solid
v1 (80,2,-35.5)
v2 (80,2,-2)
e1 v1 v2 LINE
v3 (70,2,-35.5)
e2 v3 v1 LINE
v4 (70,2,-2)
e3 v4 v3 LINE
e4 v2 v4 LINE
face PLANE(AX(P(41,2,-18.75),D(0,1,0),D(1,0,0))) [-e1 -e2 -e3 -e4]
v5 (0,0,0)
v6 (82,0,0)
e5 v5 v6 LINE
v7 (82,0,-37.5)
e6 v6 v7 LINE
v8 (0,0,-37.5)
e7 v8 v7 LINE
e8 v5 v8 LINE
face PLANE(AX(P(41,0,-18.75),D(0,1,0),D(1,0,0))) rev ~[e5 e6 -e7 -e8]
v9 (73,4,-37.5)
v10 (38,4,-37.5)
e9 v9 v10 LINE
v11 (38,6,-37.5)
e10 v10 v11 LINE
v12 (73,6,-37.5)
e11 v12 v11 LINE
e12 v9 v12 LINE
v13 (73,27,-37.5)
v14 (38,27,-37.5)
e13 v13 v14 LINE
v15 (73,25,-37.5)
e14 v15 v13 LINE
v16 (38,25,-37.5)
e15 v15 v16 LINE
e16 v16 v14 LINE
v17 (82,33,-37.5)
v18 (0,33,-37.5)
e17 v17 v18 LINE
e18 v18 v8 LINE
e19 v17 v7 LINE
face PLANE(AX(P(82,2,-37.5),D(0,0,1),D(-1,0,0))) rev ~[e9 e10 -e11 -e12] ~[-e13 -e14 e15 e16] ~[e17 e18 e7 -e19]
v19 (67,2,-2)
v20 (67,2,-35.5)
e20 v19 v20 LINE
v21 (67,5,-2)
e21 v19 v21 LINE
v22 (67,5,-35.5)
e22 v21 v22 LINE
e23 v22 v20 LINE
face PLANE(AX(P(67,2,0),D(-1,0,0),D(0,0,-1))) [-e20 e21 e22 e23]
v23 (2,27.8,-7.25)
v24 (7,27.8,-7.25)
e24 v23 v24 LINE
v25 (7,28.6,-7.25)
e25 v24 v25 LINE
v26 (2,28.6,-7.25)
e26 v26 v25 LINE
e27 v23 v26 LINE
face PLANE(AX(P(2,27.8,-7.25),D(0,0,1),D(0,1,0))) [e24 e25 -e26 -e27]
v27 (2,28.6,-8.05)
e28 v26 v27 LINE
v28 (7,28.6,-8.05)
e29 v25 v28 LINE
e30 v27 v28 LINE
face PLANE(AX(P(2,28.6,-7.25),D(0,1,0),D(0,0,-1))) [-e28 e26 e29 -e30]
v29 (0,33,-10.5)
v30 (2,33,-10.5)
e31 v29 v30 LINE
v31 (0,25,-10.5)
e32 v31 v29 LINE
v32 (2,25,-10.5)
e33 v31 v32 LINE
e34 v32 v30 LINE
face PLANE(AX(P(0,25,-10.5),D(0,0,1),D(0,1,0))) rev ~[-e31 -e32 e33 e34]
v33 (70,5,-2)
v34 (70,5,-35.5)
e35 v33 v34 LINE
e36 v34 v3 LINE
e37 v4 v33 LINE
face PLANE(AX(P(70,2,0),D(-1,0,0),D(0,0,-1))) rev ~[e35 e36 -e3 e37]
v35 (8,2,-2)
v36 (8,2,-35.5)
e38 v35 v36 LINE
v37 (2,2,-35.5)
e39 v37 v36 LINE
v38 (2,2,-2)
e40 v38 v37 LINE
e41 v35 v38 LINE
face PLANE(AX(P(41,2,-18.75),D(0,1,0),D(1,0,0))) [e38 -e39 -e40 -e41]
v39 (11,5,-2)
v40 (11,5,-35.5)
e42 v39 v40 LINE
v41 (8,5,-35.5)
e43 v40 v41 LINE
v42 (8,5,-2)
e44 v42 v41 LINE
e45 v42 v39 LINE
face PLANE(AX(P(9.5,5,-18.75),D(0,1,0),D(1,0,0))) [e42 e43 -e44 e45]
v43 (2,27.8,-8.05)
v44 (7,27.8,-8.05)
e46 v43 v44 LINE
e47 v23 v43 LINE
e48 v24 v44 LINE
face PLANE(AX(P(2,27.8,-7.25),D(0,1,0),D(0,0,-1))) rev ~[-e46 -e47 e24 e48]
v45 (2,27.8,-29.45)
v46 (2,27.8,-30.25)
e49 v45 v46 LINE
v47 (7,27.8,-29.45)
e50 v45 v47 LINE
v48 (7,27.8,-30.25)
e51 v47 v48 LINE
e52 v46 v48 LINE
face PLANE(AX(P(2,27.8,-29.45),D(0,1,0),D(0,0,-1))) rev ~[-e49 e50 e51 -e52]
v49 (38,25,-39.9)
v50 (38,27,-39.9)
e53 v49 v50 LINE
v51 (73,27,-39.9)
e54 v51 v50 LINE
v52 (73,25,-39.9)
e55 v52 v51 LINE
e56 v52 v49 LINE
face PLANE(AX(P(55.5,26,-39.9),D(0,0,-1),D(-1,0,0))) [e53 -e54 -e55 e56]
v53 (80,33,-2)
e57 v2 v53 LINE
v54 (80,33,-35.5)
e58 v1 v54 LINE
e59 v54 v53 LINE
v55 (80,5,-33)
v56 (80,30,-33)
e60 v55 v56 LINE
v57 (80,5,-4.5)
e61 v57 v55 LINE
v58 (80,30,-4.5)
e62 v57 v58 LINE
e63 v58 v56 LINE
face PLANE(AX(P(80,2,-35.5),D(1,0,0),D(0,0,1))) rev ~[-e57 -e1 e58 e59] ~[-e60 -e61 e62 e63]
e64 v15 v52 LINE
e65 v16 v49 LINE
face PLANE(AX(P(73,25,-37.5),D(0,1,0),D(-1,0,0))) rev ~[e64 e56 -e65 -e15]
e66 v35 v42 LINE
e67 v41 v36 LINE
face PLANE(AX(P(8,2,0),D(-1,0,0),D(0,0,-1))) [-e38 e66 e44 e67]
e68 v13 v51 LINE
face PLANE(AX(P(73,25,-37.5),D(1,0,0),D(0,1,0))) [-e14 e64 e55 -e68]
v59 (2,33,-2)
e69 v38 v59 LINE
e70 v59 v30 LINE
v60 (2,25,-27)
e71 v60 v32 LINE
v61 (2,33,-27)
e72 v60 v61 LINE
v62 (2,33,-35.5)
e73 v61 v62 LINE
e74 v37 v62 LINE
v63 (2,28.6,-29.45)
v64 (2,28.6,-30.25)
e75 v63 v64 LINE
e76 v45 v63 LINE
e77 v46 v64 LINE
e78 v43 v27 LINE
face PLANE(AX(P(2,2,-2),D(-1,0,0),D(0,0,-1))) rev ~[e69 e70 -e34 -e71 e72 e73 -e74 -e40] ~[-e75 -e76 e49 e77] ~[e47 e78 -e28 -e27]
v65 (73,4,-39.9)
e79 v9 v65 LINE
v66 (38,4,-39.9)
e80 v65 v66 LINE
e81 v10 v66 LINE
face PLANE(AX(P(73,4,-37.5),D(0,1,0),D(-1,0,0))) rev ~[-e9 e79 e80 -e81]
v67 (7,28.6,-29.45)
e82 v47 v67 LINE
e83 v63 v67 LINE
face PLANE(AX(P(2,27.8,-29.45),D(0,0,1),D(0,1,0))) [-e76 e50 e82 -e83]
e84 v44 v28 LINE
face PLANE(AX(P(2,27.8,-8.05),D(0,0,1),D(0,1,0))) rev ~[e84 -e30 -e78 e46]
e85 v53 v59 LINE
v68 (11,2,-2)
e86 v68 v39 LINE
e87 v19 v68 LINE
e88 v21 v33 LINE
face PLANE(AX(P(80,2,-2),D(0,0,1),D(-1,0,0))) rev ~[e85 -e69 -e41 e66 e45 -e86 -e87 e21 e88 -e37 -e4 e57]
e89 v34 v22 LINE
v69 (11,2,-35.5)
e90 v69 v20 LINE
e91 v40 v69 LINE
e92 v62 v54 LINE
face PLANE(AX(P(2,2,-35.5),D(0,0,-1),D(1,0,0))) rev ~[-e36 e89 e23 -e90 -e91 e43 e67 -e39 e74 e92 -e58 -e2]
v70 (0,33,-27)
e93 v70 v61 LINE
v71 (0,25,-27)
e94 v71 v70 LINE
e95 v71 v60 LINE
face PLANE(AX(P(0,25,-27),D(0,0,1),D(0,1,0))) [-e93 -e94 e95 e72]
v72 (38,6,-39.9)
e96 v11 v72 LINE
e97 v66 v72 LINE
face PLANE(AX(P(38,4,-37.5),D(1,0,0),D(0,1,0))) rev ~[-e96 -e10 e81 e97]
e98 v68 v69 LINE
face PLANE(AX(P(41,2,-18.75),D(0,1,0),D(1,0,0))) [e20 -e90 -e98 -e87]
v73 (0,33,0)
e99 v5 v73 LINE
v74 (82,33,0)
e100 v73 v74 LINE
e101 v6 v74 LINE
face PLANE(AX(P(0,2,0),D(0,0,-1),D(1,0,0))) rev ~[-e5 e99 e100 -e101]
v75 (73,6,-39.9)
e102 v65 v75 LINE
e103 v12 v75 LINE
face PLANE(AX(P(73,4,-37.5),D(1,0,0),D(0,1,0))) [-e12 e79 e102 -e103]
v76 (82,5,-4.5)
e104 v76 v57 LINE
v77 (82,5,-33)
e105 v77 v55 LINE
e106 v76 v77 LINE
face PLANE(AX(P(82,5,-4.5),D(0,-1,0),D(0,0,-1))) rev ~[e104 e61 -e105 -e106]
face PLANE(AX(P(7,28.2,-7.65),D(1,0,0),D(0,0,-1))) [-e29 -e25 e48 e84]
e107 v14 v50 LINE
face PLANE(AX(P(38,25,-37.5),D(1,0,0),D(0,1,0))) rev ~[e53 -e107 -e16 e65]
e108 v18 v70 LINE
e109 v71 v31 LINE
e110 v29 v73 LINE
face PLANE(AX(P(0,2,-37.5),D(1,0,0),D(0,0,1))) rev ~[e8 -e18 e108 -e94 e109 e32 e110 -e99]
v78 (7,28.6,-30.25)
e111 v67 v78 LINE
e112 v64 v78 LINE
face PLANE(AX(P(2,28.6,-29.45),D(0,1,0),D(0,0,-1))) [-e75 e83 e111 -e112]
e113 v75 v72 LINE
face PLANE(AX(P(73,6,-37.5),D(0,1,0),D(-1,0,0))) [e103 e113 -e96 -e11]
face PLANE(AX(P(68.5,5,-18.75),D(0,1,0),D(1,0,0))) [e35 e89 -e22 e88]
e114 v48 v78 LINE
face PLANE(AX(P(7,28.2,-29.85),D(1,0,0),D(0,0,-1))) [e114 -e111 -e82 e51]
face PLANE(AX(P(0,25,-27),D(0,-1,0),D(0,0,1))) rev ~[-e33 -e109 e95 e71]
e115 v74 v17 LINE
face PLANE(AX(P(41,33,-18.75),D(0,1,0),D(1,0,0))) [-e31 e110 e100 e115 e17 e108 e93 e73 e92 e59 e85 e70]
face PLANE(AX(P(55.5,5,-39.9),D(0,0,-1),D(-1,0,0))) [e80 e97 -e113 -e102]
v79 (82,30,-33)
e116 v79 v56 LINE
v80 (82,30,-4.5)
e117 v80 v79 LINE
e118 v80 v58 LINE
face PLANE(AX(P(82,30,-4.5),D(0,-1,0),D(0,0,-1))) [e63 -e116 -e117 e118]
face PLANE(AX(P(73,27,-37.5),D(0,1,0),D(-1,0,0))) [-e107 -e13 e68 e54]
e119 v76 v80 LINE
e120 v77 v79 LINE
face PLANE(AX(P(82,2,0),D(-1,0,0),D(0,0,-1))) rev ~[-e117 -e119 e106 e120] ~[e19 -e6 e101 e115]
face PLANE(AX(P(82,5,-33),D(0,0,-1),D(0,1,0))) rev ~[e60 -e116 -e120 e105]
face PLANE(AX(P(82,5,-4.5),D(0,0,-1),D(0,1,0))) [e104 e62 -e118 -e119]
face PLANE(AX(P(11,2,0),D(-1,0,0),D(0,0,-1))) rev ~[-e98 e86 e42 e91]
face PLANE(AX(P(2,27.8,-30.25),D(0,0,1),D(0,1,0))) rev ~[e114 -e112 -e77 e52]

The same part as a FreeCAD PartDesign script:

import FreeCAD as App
import Part
import Sketcher
from FreeCAD import Vector
Q = App.Units.Quantity

doc = App.newDocument("Part")
body = doc.addObject("PartDesign::Body", "Body")

# Sketch on XZ plane
sketch1 = body.newObject("Sketcher::SketchObject", "Sketch")
sketch1.AttachmentSupport = (doc.getObject("XZ_Plane"), [""])
sketch1.MapMode = "FlatFace"
sketch1.addGeometry(Part.LineSegment(Vector(0, -38, 0), Vector(0, 0, 0)), False)
sketch1.addGeometry(Part.LineSegment(Vector(0, 0, 0), Vector(82, 0, 0)), False)
sketch1.addGeometry(Part.LineSegment(Vector(82, 0, 0), Vector(82, -38, 0)), False)
sketch1.addGeometry(Part.LineSegment(Vector(82, -38, 0), Vector(0, -38, 0)), False)
sketch1.addConstraint(Sketcher.Constraint("Coincident", 0, 2, 1, 1))
sketch1.addConstraint(Sketcher.Constraint("Coincident", 1, 2, 2, 1))
sketch1.addConstraint(Sketcher.Constraint("Coincident", 2, 2, 3, 1))
sketch1.addConstraint(Sketcher.Constraint("Coincident", 3, 2, 0, 1))
sketch1.addConstraint(Sketcher.Constraint("Vertical", 0))
sketch1.addConstraint(Sketcher.Constraint("Horizontal", 1))
sketch1.addConstraint(Sketcher.Constraint("Vertical", 2))
sketch1.addConstraint(Sketcher.Constraint("Horizontal", 3))
sketch1.addConstraint(Sketcher.Constraint("Coincident", 0, 2, -1, 1))
sketch1.addConstraint(Sketcher.Constraint("DistanceX", 1, 1, 1, 2, Q("82 mm")))
sketch1.addConstraint(Sketcher.Constraint("DistanceY", 0, 1, 0, 2, Q("37.5 mm")))
pad1 = body.newObject("PartDesign::Pad", "Pad")
pad1.Profile = sketch1
pad1.Length = 2
pad1.Reversed = True

# Sketch on XZ plane
sketch2 = body.newObject("Sketcher::SketchObject", "Sketch001")
sketch2.AttachmentSupport = (doc.getObject("XZ_Plane"), [""])
sketch2.MapMode = "FlatFace"
sketch2.AttachmentOffset = App.Placement(Vector(0, 0, -2), App.Rotation())
sketch2.addGeometry(Part.LineSegment(Vector(8, -37.5, 0), Vector(8, 0, 0)), False)
sketch2.addGeometry(Part.LineSegment(Vector(8, 0, 0), Vector(11, 0, 0)), False)
sketch2.addGeometry(Part.LineSegment(Vector(11, 0, 0), Vector(11, -37.5, 0)), False)
sketch2.addGeometry(Part.LineSegment(Vector(11, -37.5, 0), Vector(8, -37.5, 0)), False)
sketch2.addGeometry(Part.LineSegment(Vector(67, -37.5, 0), Vector(67, 0, 0)), False)
sketch2.addGeometry(Part.LineSegment(Vector(67, 0, 0), Vector(70, 0, 0)), False)
sketch2.addGeometry(Part.LineSegment(Vector(70, 0, 0), Vector(70, -37.5, 0)), False)
sketch2.addGeometry(Part.LineSegment(Vector(70, -37.5, 0), Vector(67, -37.5, 0)), False)
sketch2.addConstraint(Sketcher.Constraint("Coincident", 0, 2, 1, 1))
sketch2.addConstraint(Sketcher.Constraint("Coincident", 1, 2, 2, 1))
sketch2.addConstraint(Sketcher.Constraint("Coincident", 2, 2, 3, 1))
sketch2.addConstraint(Sketcher.Constraint("Coincident", 3, 2, 0, 1))
sketch2.addConstraint(Sketcher.Constraint("Coincident", 4, 2, 5, 1))
sketch2.addConstraint(Sketcher.Constraint("Coincident", 5, 2, 6, 1))
sketch2.addConstraint(Sketcher.Constraint("Coincident", 6, 2, 7, 1))
sketch2.addConstraint(Sketcher.Constraint("Coincident", 7, 2, 4, 1))
sketch2.addConstraint(Sketcher.Constraint("Vertical", 0))
sketch2.addConstraint(Sketcher.Constraint("Horizontal", 1))
sketch2.addConstraint(Sketcher.Constraint("Vertical", 2))
sketch2.addConstraint(Sketcher.Constraint("Horizontal", 3))
sketch2.addConstraint(Sketcher.Constraint("Vertical", 4))
sketch2.addConstraint(Sketcher.Constraint("Horizontal", 5))
sketch2.addConstraint(Sketcher.Constraint("Vertical", 6))
sketch2.addConstraint(Sketcher.Constraint("Horizontal", 7))
sketch2.addConstraint(Sketcher.Constraint("PointOnObject", 0, 2, -1))
sketch2.addConstraint(Sketcher.Constraint("PointOnObject", 4, 2, -1))
sketch2.addConstraint(Sketcher.Constraint("Horizontal", 3, 2, 6, 2))
sketch2.addConstraint(Sketcher.Constraint("Equal", 3, 5))
sketch2.addConstraint(Sketcher.Constraint("DistanceX", 1, 1, 1, 2, Q("3 mm")))
sketch2.addConstraint(Sketcher.Constraint("DistanceY", 0, 1, 0, 2, Q("37.5 mm")))
sketch2.addConstraint(Sketcher.Constraint("DistanceX", -1, 1, 0, 2, Q("8 mm")))
sketch2.addConstraint(Sketcher.Constraint("DistanceX", -1, 1, 4, 2, Q("67 mm")))
pad2 = body.newObject("PartDesign::Pad", "Pad001")
pad2.Profile = sketch2
pad2.Length = 3
pad2.Reversed = True

# Sketch on XZ plane
sketch3 = body.newObject("Sketcher::SketchObject", "Sketch002")
sketch3.AttachmentSupport = (doc.getObject("XZ_Plane"), [""])
sketch3.MapMode = "FlatFace"
sketch3.AttachmentOffset = App.Placement(Vector(0, 0, -2), App.Rotation())
sketch3.addGeometry(Part.LineSegment(Vector(0, -38, 0), Vector(0, 0, 0)), False)
sketch3.addGeometry(Part.LineSegment(Vector(0, 0, 0), Vector(82, 0, 0)), False)
sketch3.addGeometry(Part.LineSegment(Vector(82, 0, 0), Vector(82, -38, 0)), False)
sketch3.addGeometry(Part.LineSegment(Vector(82, -38, 0), Vector(0, -38, 0)), False)
sketch3.addGeometry(Part.LineSegment(Vector(80, -2, 0), Vector(2, -2, 0)), False)
sketch3.addGeometry(Part.LineSegment(Vector(2, -2, 0), Vector(2, -36, 0)), False)
sketch3.addGeometry(Part.LineSegment(Vector(2, -36, 0), Vector(80, -36, 0)), False)
sketch3.addGeometry(Part.LineSegment(Vector(80, -36, 0), Vector(80, -2, 0)), False)
sketch3.addConstraint(Sketcher.Constraint("Coincident", 0, 2, 1, 1))
sketch3.addConstraint(Sketcher.Constraint("Coincident", 1, 2, 2, 1))
sketch3.addConstraint(Sketcher.Constraint("Coincident", 2, 2, 3, 1))
sketch3.addConstraint(Sketcher.Constraint("Coincident", 3, 2, 0, 1))
sketch3.addConstraint(Sketcher.Constraint("Coincident", 4, 2, 5, 1))
sketch3.addConstraint(Sketcher.Constraint("Coincident", 5, 2, 6, 1))
sketch3.addConstraint(Sketcher.Constraint("Coincident", 6, 2, 7, 1))
sketch3.addConstraint(Sketcher.Constraint("Coincident", 7, 2, 4, 1))
sketch3.addConstraint(Sketcher.Constraint("Vertical", 0))
sketch3.addConstraint(Sketcher.Constraint("Horizontal", 1))
sketch3.addConstraint(Sketcher.Constraint("Vertical", 2))
sketch3.addConstraint(Sketcher.Constraint("Horizontal", 3))
sketch3.addConstraint(Sketcher.Constraint("Horizontal", 4))
sketch3.addConstraint(Sketcher.Constraint("Vertical", 5))
sketch3.addConstraint(Sketcher.Constraint("Horizontal", 6))
sketch3.addConstraint(Sketcher.Constraint("Vertical", 7))
sketch3.addConstraint(Sketcher.Constraint("Coincident", 0, 2, -1, 1))
sketch3.addConstraint(Sketcher.Constraint("DistanceX", 1, 1, 1, 2, Q("82 mm")))
sketch3.addConstraint(Sketcher.Constraint("DistanceX", 4, 2, 4, 1, Q("78 mm")))
sketch3.addConstraint(Sketcher.Constraint("DistanceY", 0, 1, 0, 2, Q("37.5 mm")))
sketch3.addConstraint(Sketcher.Constraint("DistanceY", 5, 2, 5, 1, Q("33.5 mm")))
sketch3.addConstraint(Sketcher.Constraint("DistanceX", -1, 1, 4, 2, Q("2 mm")))
sketch3.addConstraint(Sketcher.Constraint("DistanceY", 4, 2, -1, 1, Q("2 mm")))
pad3 = body.newObject("PartDesign::Pad", "Pad002")
pad3.Profile = sketch3
pad3.Length = 31
pad3.Reversed = True

# Sketch on YZ plane
sketch4 = body.newObject("Sketcher::SketchObject", "Sketch003")
sketch4.AttachmentSupport = (doc.getObject("YZ_Plane"), [""])
sketch4.MapMode = "FlatFace"
sketch4.addGeometry(Part.LineSegment(Vector(33, -27, 0), Vector(25, -27, 0)), False)
sketch4.addGeometry(Part.LineSegment(Vector(25, -27, 0), Vector(25, -10, 0)), False)
sketch4.addGeometry(Part.LineSegment(Vector(25, -10, 0), Vector(33, -10, 0)), False)
sketch4.addGeometry(Part.LineSegment(Vector(33, -10, 0), Vector(33, -27, 0)), False)
sketch4.addConstraint(Sketcher.Constraint("Coincident", 0, 2, 1, 1))
sketch4.addConstraint(Sketcher.Constraint("Coincident", 1, 2, 2, 1))
sketch4.addConstraint(Sketcher.Constraint("Coincident", 2, 2, 3, 1))
sketch4.addConstraint(Sketcher.Constraint("Coincident", 3, 2, 0, 1))
sketch4.addConstraint(Sketcher.Constraint("Horizontal", 0))
sketch4.addConstraint(Sketcher.Constraint("Vertical", 1))
sketch4.addConstraint(Sketcher.Constraint("Horizontal", 2))
sketch4.addConstraint(Sketcher.Constraint("Vertical", 3))
sketch4.addConstraint(Sketcher.Constraint("DistanceX", 0, 2, 0, 1, Q("8 mm")))
sketch4.addConstraint(Sketcher.Constraint("DistanceY", 1, 1, 1, 2, Q("16.5 mm")))
sketch4.addConstraint(Sketcher.Constraint("DistanceX", -1, 1, 0, 2, Q("25 mm")))
sketch4.addConstraint(Sketcher.Constraint("DistanceY", 0, 2, -1, 1, Q("27 mm")))
pocket1 = body.newObject("PartDesign::Pocket", "Pocket")
pocket1.Profile = sketch4
pocket1.Length = 2
pocket1.Reversed = True

# Sketch on YZ plane
sketch5 = body.newObject("Sketcher::SketchObject", "Sketch004")
sketch5.AttachmentSupport = (doc.getObject("YZ_Plane"), [""])
sketch5.MapMode = "FlatFace"
sketch5.AttachmentOffset = App.Placement(Vector(0, 0, 82), App.Rotation())
sketch5.addGeometry(Part.LineSegment(Vector(30, -4, 0), Vector(5, -4, 0)), False)
sketch5.addGeometry(Part.LineSegment(Vector(5, -4, 0), Vector(5, -33, 0)), False)
sketch5.addGeometry(Part.LineSegment(Vector(5, -33, 0), Vector(30, -33, 0)), False)
sketch5.addGeometry(Part.LineSegment(Vector(30, -33, 0), Vector(30, -4, 0)), False)
sketch5.addConstraint(Sketcher.Constraint("Coincident", 0, 2, 1, 1))
sketch5.addConstraint(Sketcher.Constraint("Coincident", 1, 2, 2, 1))
sketch5.addConstraint(Sketcher.Constraint("Coincident", 2, 2, 3, 1))
sketch5.addConstraint(Sketcher.Constraint("Coincident", 3, 2, 0, 1))
sketch5.addConstraint(Sketcher.Constraint("Horizontal", 0))
sketch5.addConstraint(Sketcher.Constraint("Vertical", 1))
sketch5.addConstraint(Sketcher.Constraint("Horizontal", 2))
sketch5.addConstraint(Sketcher.Constraint("Vertical", 3))
sketch5.addConstraint(Sketcher.Constraint("DistanceX", 0, 2, 0, 1, Q("25 mm")))
sketch5.addConstraint(Sketcher.Constraint("DistanceY", 1, 2, 1, 1, Q("28.5 mm")))
sketch5.addConstraint(Sketcher.Constraint("DistanceX", -1, 1, 0, 2, Q("5 mm")))
sketch5.addConstraint(Sketcher.Constraint("DistanceY", 1, 2, -1, 1, Q("33 mm")))
pocket2 = body.newObject("PartDesign::Pocket", "Pocket001")
pocket2.Profile = sketch5
pocket2.Length = 2

# Sketch on YZ plane
sketch6 = body.newObject("Sketcher::SketchObject", "Sketch005")
sketch6.AttachmentSupport = (doc.getObject("YZ_Plane"), [""])
sketch6.MapMode = "FlatFace"
sketch6.AttachmentOffset = App.Placement(Vector(0, 0, 2), App.Rotation())
sketch6.addGeometry(Part.LineSegment(Vector(28.6, -7.2, 0), Vector(27.8, -7.2, 0)), False)
sketch6.addGeometry(Part.LineSegment(Vector(27.8, -7.2, 0), Vector(27.8, -8.1, 0)), False)
sketch6.addGeometry(Part.LineSegment(Vector(27.8, -8.1, 0), Vector(28.6, -8.1, 0)), False)
sketch6.addGeometry(Part.LineSegment(Vector(28.6, -8.1, 0), Vector(28.6, -7.2, 0)), False)
sketch6.addGeometry(Part.LineSegment(Vector(28.6, -29.4, 0), Vector(27.8, -29.4, 0)), False)
sketch6.addGeometry(Part.LineSegment(Vector(27.8, -29.4, 0), Vector(27.8, -30.2, 0)), False)
sketch6.addGeometry(Part.LineSegment(Vector(27.8, -30.2, 0), Vector(28.6, -30.2, 0)), False)
sketch6.addGeometry(Part.LineSegment(Vector(28.6, -30.2, 0), Vector(28.6, -29.4, 0)), False)
sketch6.addConstraint(Sketcher.Constraint("Coincident", 0, 2, 1, 1))
sketch6.addConstraint(Sketcher.Constraint("Coincident", 1, 2, 2, 1))
sketch6.addConstraint(Sketcher.Constraint("Coincident", 2, 2, 3, 1))
sketch6.addConstraint(Sketcher.Constraint("Coincident", 3, 2, 0, 1))
sketch6.addConstraint(Sketcher.Constraint("Coincident", 4, 2, 5, 1))
sketch6.addConstraint(Sketcher.Constraint("Coincident", 5, 2, 6, 1))
sketch6.addConstraint(Sketcher.Constraint("Coincident", 6, 2, 7, 1))
sketch6.addConstraint(Sketcher.Constraint("Coincident", 7, 2, 4, 1))
sketch6.addConstraint(Sketcher.Constraint("Horizontal", 0))
sketch6.addConstraint(Sketcher.Constraint("Vertical", 1))
sketch6.addConstraint(Sketcher.Constraint("Horizontal", 2))
sketch6.addConstraint(Sketcher.Constraint("Vertical", 3))
sketch6.addConstraint(Sketcher.Constraint("Horizontal", 4))
sketch6.addConstraint(Sketcher.Constraint("Vertical", 5))
sketch6.addConstraint(Sketcher.Constraint("Horizontal", 6))
sketch6.addConstraint(Sketcher.Constraint("Vertical", 7))
sketch6.addConstraint(Sketcher.Constraint("Vertical", 1, 2, 4, 2))
sketch6.addConstraint(Sketcher.Constraint("Vertical", 3, 2, 6, 2))
sketch6.addConstraint(Sketcher.Constraint("Equal", 6, 1))
sketch6.addConstraint(Sketcher.Constraint("Equal", 3, 5))
sketch6.addConstraint(Sketcher.Constraint("DistanceX", 0, 2, 0, 1, Q("0.8 mm")))
sketch6.addConstraint(Sketcher.Constraint("DistanceY", 5, 2, 0, 2, Q("23 mm")))
sketch6.addConstraint(Sketcher.Constraint("DistanceX", -1, 1, 0, 2, Q("27.8 mm")))
sketch6.addConstraint(Sketcher.Constraint("DistanceY", 0, 2, -1, 1, Q("7.25 mm")))
pad4 = body.newObject("PartDesign::Pad", "Pad003")
pad4.Profile = sketch6
pad4.Length = 5

# Sketch on XY plane
sketch7 = body.newObject("Sketcher::SketchObject", "Sketch006")
sketch7.AttachmentSupport = (doc.getObject("XY_Plane"), [""])
sketch7.MapMode = "FlatFace"
sketch7.AttachmentOffset = App.Placement(Vector(0, 0, -37.5), App.Rotation())
sketch7.addGeometry(Part.LineSegment(Vector(73, 27, 0), Vector(73, 25, 0)), False)
sketch7.addGeometry(Part.LineSegment(Vector(73, 25, 0), Vector(38, 25, 0)), False)
sketch7.addGeometry(Part.LineSegment(Vector(38, 25, 0), Vector(38, 27, 0)), False)
sketch7.addGeometry(Part.LineSegment(Vector(38, 27, 0), Vector(73, 27, 0)), False)
sketch7.addGeometry(Part.LineSegment(Vector(73, 6, 0), Vector(73, 4, 0)), False)
sketch7.addGeometry(Part.LineSegment(Vector(73, 4, 0), Vector(38, 4, 0)), False)
sketch7.addGeometry(Part.LineSegment(Vector(38, 4, 0), Vector(38, 6, 0)), False)
sketch7.addGeometry(Part.LineSegment(Vector(38, 6, 0), Vector(73, 6, 0)), False)
sketch7.addConstraint(Sketcher.Constraint("Coincident", 0, 2, 1, 1))
sketch7.addConstraint(Sketcher.Constraint("Coincident", 1, 2, 2, 1))
sketch7.addConstraint(Sketcher.Constraint("Coincident", 2, 2, 3, 1))
sketch7.addConstraint(Sketcher.Constraint("Coincident", 3, 2, 0, 1))
sketch7.addConstraint(Sketcher.Constraint("Coincident", 4, 2, 5, 1))
sketch7.addConstraint(Sketcher.Constraint("Coincident", 5, 2, 6, 1))
sketch7.addConstraint(Sketcher.Constraint("Coincident", 6, 2, 7, 1))
sketch7.addConstraint(Sketcher.Constraint("Coincident", 7, 2, 4, 1))
sketch7.addConstraint(Sketcher.Constraint("Vertical", 0))
sketch7.addConstraint(Sketcher.Constraint("Horizontal", 1))
sketch7.addConstraint(Sketcher.Constraint("Vertical", 2))
sketch7.addConstraint(Sketcher.Constraint("Horizontal", 3))
sketch7.addConstraint(Sketcher.Constraint("Vertical", 4))
sketch7.addConstraint(Sketcher.Constraint("Horizontal", 5))
sketch7.addConstraint(Sketcher.Constraint("Vertical", 6))
sketch7.addConstraint(Sketcher.Constraint("Horizontal", 7))
sketch7.addConstraint(Sketcher.Constraint("Vertical", 3, 2, 4, 2))
sketch7.addConstraint(Sketcher.Constraint("Vertical", 2, 2, 5, 2))
sketch7.addConstraint(Sketcher.Constraint("Equal", 2, 4))
sketch7.addConstraint(Sketcher.Constraint("DistanceX", 1, 2, 1, 1, Q("35 mm")))
sketch7.addConstraint(Sketcher.Constraint("DistanceY", 0, 2, 0, 1, Q("2 mm")))
sketch7.addConstraint(Sketcher.Constraint("DistanceX", -1, 1, 0, 2, Q("73 mm")))
sketch7.addConstraint(Sketcher.Constraint("DistanceY", -1, 1, 0, 2, Q("25 mm")))
sketch7.addConstraint(Sketcher.Constraint("DistanceY", -1, 1, 4, 2, Q("4 mm")))
pad5 = body.newObject("PartDesign::Pad", "Pad004")
pad5.Profile = sketch7
pad5.Length = 2.4
pad5.Reversed = True

doc.recompute()
